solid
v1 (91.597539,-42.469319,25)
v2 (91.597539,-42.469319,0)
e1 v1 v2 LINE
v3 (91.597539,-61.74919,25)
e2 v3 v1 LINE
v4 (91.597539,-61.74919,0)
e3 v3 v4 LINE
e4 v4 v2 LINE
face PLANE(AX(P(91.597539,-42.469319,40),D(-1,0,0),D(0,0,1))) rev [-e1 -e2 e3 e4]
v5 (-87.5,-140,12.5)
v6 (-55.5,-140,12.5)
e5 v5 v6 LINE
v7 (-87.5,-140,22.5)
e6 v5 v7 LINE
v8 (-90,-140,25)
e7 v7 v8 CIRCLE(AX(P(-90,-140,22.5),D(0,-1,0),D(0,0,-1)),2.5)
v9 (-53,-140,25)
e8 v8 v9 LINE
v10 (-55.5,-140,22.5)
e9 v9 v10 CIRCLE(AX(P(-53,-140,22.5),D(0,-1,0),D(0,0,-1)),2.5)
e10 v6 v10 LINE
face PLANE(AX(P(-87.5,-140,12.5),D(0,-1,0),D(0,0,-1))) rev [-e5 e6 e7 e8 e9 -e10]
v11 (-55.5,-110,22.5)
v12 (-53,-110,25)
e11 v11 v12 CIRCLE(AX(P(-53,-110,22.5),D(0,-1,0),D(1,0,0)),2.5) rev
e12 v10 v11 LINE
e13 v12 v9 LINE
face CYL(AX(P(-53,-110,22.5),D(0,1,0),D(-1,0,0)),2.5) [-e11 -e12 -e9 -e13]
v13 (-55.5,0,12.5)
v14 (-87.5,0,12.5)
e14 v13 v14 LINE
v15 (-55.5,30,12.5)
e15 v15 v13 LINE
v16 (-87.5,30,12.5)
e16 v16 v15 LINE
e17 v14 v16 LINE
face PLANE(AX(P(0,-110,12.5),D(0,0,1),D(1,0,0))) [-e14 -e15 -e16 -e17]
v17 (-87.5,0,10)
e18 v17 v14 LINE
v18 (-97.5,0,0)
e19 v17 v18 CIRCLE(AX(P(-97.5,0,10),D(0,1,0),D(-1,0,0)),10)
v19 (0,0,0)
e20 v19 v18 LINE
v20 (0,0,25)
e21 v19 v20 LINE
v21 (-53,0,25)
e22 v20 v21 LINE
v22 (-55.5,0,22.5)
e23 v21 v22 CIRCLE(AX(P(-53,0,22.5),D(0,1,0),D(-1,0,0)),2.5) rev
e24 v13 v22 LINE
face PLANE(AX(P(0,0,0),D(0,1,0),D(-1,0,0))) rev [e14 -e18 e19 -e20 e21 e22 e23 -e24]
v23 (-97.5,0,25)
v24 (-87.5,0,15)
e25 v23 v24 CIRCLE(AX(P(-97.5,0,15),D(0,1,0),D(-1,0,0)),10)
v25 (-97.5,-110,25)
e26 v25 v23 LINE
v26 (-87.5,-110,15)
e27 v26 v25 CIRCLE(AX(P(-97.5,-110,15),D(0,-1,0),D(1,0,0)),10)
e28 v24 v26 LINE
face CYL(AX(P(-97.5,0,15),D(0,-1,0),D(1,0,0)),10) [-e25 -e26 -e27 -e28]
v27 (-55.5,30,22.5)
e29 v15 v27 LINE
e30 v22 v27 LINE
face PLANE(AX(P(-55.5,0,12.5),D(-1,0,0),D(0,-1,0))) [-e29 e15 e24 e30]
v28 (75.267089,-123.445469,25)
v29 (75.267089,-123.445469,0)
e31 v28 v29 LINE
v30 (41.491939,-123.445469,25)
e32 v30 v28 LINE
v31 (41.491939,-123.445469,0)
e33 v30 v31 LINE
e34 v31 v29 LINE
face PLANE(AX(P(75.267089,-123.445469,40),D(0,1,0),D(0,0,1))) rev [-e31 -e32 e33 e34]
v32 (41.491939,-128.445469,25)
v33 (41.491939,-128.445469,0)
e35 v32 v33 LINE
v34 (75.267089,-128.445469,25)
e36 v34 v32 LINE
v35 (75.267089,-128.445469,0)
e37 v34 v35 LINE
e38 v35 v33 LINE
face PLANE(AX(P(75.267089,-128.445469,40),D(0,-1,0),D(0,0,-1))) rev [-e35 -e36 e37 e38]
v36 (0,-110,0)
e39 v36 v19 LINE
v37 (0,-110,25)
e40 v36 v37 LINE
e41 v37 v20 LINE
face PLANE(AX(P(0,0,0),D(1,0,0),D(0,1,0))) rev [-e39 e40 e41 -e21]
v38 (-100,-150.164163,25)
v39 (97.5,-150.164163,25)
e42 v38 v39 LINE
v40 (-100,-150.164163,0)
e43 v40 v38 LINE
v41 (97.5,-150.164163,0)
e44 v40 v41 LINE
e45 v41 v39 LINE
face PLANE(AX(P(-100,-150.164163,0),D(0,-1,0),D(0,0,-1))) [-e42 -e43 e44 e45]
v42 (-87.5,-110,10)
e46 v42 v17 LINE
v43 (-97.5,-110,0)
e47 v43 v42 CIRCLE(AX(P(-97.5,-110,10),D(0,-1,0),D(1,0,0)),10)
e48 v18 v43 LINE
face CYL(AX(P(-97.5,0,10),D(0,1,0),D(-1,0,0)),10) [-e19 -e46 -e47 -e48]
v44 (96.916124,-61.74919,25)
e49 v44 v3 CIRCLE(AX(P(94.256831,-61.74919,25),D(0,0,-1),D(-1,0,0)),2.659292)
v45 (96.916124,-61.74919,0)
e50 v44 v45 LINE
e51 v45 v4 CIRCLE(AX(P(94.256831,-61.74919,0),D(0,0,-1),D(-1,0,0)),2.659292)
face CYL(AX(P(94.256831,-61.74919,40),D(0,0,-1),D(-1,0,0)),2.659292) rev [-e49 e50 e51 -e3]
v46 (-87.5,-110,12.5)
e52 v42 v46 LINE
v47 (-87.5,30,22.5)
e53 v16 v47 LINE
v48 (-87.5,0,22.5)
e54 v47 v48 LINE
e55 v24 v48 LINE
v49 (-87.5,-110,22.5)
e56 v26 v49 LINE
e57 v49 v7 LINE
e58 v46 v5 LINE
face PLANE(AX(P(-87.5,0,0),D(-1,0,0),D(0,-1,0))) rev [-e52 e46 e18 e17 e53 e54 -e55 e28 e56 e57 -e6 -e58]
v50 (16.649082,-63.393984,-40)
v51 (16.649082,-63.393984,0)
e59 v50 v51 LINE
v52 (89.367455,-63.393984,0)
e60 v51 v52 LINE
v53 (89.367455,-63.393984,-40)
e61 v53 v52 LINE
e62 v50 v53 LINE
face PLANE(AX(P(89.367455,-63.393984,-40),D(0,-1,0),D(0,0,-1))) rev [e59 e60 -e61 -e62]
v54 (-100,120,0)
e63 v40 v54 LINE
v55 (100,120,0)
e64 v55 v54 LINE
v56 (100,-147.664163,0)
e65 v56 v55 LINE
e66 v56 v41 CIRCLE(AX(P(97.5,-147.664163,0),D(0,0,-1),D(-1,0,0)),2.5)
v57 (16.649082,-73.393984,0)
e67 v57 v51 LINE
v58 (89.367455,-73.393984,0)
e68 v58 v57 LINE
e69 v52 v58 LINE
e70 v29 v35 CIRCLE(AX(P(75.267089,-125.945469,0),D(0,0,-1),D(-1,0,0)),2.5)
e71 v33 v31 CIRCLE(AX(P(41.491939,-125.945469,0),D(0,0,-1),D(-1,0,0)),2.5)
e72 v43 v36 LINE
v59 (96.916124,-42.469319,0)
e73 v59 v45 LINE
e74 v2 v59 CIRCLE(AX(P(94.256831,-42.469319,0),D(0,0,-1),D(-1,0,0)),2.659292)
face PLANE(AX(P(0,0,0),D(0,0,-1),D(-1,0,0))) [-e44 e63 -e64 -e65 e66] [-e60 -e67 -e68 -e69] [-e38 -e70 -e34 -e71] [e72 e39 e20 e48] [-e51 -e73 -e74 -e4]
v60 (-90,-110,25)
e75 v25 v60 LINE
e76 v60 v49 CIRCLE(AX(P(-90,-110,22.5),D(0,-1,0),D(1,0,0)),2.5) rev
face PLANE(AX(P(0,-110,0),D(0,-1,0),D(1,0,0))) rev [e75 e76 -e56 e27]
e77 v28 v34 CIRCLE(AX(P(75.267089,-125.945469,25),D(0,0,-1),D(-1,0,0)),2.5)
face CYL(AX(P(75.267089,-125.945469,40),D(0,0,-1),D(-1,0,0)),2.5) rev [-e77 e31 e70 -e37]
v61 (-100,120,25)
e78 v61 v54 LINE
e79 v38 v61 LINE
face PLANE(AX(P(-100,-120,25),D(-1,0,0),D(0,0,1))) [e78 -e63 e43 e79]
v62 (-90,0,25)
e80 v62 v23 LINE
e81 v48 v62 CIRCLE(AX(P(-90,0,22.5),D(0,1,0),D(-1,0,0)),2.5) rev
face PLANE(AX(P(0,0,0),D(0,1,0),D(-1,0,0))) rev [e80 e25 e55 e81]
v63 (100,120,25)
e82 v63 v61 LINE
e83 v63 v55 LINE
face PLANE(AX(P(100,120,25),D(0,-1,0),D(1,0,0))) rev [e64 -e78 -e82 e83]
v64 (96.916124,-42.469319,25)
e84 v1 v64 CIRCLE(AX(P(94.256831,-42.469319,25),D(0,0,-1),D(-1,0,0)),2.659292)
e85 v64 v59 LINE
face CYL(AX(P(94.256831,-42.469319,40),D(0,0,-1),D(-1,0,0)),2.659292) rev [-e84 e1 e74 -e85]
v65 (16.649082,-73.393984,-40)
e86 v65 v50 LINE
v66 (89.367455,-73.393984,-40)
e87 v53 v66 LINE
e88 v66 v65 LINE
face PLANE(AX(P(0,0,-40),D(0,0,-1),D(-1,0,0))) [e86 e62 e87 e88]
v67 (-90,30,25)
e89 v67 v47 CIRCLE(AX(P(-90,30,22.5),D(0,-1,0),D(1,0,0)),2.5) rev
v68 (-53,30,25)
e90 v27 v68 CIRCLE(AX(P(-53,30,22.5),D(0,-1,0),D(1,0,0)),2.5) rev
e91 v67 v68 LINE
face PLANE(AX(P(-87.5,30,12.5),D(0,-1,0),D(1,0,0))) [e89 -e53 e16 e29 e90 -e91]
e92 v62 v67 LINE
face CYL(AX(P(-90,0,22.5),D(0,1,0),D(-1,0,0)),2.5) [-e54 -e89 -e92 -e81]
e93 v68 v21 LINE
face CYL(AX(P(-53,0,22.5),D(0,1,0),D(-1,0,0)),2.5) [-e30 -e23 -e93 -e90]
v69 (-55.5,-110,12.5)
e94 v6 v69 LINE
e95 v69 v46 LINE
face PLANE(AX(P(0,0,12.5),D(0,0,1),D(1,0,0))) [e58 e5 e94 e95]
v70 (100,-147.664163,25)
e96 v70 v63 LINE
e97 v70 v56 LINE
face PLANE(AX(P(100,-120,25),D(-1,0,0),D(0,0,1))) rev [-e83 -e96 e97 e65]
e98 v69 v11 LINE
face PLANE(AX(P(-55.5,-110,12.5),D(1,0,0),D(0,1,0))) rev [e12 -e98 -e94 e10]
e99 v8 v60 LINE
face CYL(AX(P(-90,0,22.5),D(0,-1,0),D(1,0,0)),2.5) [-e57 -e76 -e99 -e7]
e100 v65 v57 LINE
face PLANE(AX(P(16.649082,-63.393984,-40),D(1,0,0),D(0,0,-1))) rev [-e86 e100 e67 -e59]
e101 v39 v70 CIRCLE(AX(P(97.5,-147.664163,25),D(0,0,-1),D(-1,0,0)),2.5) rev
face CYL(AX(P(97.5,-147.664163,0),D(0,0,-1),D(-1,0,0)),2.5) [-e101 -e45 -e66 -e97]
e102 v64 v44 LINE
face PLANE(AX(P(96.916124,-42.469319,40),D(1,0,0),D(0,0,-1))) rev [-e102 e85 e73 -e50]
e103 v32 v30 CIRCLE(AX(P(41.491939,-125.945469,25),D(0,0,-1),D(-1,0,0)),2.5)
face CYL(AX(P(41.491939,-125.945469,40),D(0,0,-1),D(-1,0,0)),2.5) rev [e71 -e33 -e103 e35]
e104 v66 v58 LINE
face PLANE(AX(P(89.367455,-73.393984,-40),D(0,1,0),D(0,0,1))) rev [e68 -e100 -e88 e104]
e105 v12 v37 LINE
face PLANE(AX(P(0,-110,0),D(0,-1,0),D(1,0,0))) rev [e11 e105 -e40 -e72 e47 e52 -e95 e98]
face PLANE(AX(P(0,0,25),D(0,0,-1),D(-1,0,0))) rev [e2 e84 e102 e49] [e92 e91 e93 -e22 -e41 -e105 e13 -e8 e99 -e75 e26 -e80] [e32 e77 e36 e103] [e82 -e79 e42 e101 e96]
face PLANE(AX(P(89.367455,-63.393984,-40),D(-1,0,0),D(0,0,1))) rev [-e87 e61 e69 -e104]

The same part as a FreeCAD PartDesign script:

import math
import FreeCAD as App
import Part
import Sketcher

V = App.Vector


def edges_at(feature, points):
    """Names of the edges that pass closest to the given points."""
    edges = feature.Shape.Edges
    near = lambda p: min(range(len(edges)), key=lambda i: edges[i].distToShape(Part.Vertex(*p))[0])
    return sorted({f"Edge{near(p) + 1}" for p in points})

doc = App.newDocument("Part")
body = doc.addObject("PartDesign::Body", "Body")

# Sketch on XY plane
sketch1 = body.newObject("Sketcher::SketchObject", "Sketch")
sketch1.AttachmentSupport = (doc.getObject("XY_Plane"), [""])
sketch1.MapMode = "FlatFace"
sketch1.addGeometry(Part.LineSegment(V(-100, 120, 0), V(-100, -120, 0)), False)
sketch1.addGeometry(Part.LineSegment(V(-100, -120, 0), V(100, -120, 0)), False)
sketch1.addGeometry(Part.LineSegment(V(100, -120, 0), V(100, 120, 0)), False)
sketch1.addGeometry(Part.LineSegment(V(100, 120, 0), V(-100, 120, 0)), False)
sketch1.addConstraint(Sketcher.Constraint("Coincident", 0, 2, 1, 1))
sketch1.addConstraint(Sketcher.Constraint("Coincident", 1, 2, 2, 1))
sketch1.addConstraint(Sketcher.Constraint("Coincident", 2, 2, 3, 1))
sketch1.addConstraint(Sketcher.Constraint("Coincident", 3, 2, 0, 1))
sketch1.addConstraint(Sketcher.Constraint("Vertical", 0))
sketch1.addConstraint(Sketcher.Constraint("Horizontal", 1))
sketch1.addConstraint(Sketcher.Constraint("Vertical", 2))
sketch1.addConstraint(Sketcher.Constraint("Horizontal", 3))
sketch1.addConstraint(Sketcher.Constraint("Symmetric", 0, 2, 2, 2, -1, 1))
sketch1.addConstraint(Sketcher.Constraint("DistanceX", 1, 1, 1, 2, 200.0))
sketch1.addConstraint(Sketcher.Constraint("DistanceY", 0, 2, 0, 1, 240.0))
pad1 = body.newObject("PartDesign::Pad", "Pad")
pad1.Profile = sketch1
pad1.Length = 25

# Sketch on XY plane
sketch2 = body.newObject("Sketcher::SketchObject", "Sketch001")
sketch2.AttachmentSupport = (doc.getObject("XY_Plane"), [""])
sketch2.MapMode = "FlatFace"
sketch2.AttachmentOffset = App.Placement(V(0, 0, 25), App.Rotation())
sketch2.addGeometry(Part.LineSegment(V(-88, 0, 0), V(-88, -110, 0)), False)
sketch2.addGeometry(Part.LineSegment(V(-88, -110, 0), V(0, -110, 0)), False)
sketch2.addGeometry(Part.LineSegment(V(0, -110, 0), V(0, 0, 0)), False)
sketch2.addGeometry(Part.LineSegment(V(0, 0, 0), V(-88, 0, 0)), False)
sketch2.addConstraint(Sketcher.Constraint("Coincident", 0, 2, 1, 1))
sketch2.addConstraint(Sketcher.Constraint("Coincident", 1, 2, 2, 1))
sketch2.addConstraint(Sketcher.Constraint("Coincident", 2, 2, 3, 1))
sketch2.addConstraint(Sketcher.Constraint("Coincident", 3, 2, 0, 1))
sketch2.addConstraint(Sketcher.Constraint("Vertical", 0))
sketch2.addConstraint(Sketcher.Constraint("Horizontal", 1))
sketch2.addConstraint(Sketcher.Constraint("Vertical", 2))
sketch2.addConstraint(Sketcher.Constraint("Horizontal", 3))
sketch2.addConstraint(Sketcher.Constraint("Coincident", 2, 2, -1, 1))
sketch2.addConstraint(Sketcher.Constraint("DistanceY", 0, 2, 0, 1, 110.0))
sketch2.addConstraint(Sketcher.Constraint("DistanceX", 1, 1, 1, 2, 87.5))
pocket1 = body.newObject("PartDesign::Pocket", "Pocket")
pocket1.Profile = sketch2
pocket1.Length = 25

# Sketch on XY plane
sketch3 = body.newObject("Sketcher::SketchObject", "Sketch002")
sketch3.AttachmentSupport = (doc.getObject("XY_Plane"), [""])
sketch3.MapMode = "FlatFace"
sketch3.AttachmentOffset = App.Placement(V(0, 0, 25), App.Rotation())
sketch3.addGeometry(Part.LineSegment(V(-100, -120, 0), V(-100, -150, 0)), False)
sketch3.addGeometry(Part.LineSegment(V(-100, -150, 0), V(100, -150, 0)), False)
sketch3.addGeometry(Part.LineSegment(V(100, -150, 0), V(100, -120, 0)), False)
sketch3.addGeometry(Part.LineSegment(V(100, -120, 0), V(-100, -120, 0)), False)
sketch3.addConstraint(Sketcher.Constraint("Coincident", 0, 2, 1, 1))
sketch3.addConstraint(Sketcher.Constraint("Coincident", 1, 2, 2, 1))
sketch3.addConstraint(Sketcher.Constraint("Coincident", 2, 2, 3, 1))
sketch3.addConstraint(Sketcher.Constraint("Coincident", 3, 2, 0, 1))
sketch3.addConstraint(Sketcher.Constraint("Vertical", 0))
sketch3.addConstraint(Sketcher.Constraint("Horizontal", 1))
sketch3.addConstraint(Sketcher.Constraint("Vertical", 2))
sketch3.addConstraint(Sketcher.Constraint("Horizontal", 3))
sketch3.addConstraint(Sketcher.Constraint("DistanceX", 1, 1, 1, 2, 200.0))
sketch3.addConstraint(Sketcher.Constraint("DistanceX", 0, 2, -1, 1, 100.0))
sketch3.addConstraint(Sketcher.Constraint("DistanceY", 2, 2, -1, 1, 120.0))
sketch3.addConstraint(Sketcher.Constraint("DistanceY", 0, 2, 0, 1, 30.164163))
pad2 = body.newObject("PartDesign::Pad", "Pad001")
pad2.Profile = sketch3
pad2.Length = 25
pad2.Reversed = True
doc.recompute()

fillet = body.newObject("PartDesign::Fillet", "Fillet")
fillet.Base = (pad2, edges_at(pad2, [(-87.5, -55, 25)]))
fillet.Radius = 10
doc.recompute()

fillet2 = body.newObject("PartDesign::Fillet", "Fillet001")
fillet2.Base = (fillet, edges_at(fillet, [(-87.5, -55, 0)]))
fillet2.Radius = 10

# Sketch on XY plane
sketch4 = body.newObject("Sketcher::SketchObject", "Sketch003")
sketch4.AttachmentSupport = (doc.getObject("XY_Plane"), [""])
sketch4.MapMode = "FlatFace"
sketch4.AttachmentOffset = App.Placement(V(0, 0, 25), App.Rotation())
sketch4.addGeometry(Part.LineSegment(V(-88, -110, 0), V(-88, -140, 0)), False)
sketch4.addGeometry(Part.LineSegment(V(-88, -140, 0), V(-56, -140, 0)), False)
sketch4.addGeometry(Part.LineSegment(V(-56, -140, 0), V(-56, -110, 0)), False)
sketch4.addGeometry(Part.LineSegment(V(-56, -110, 0), V(-88, -110, 0)), False)
sketch4.addConstraint(Sketcher.Constraint("Coincident", 0, 2, 1, 1))
sketch4.addConstraint(Sketcher.Constraint("Coincident", 1, 2, 2, 1))
sketch4.addConstraint(Sketcher.Constraint("Coincident", 2, 2, 3, 1))
sketch4.addConstraint(Sketcher.Constraint("Coincident", 3, 2, 0, 1))
sketch4.addConstraint(Sketcher.Constraint("Vertical", 0))
sketch4.addConstraint(Sketcher.Constraint("Horizontal", 1))
sketch4.addConstraint(Sketcher.Constraint("Vertical", 2))
sketch4.addConstraint(Sketcher.Constraint("Horizontal", 3))
sketch4.addConstraint(Sketcher.Constraint("DistanceX", 1, 1, 1, 2, 32.0))
sketch4.addConstraint(Sketcher.Constraint("DistanceY", 0, 2, 0, 1, 30.0))
sketch4.addConstraint(Sketcher.Constraint("DistanceY", 0, 2, -1, 1, 140.0))
sketch4.addConstraint(Sketcher.Constraint("DistanceX", 0, 2, -1, 1, 87.5))
pocket2 = body.newObject("PartDesign::Pocket", "Pocket001")
pocket2.Profile = sketch4
pocket2.Length = 12.5
doc.recompute()

fillet3 = body.newObject("PartDesign::Fillet", "Fillet002")
fillet3.Base = (pocket2, edges_at(pocket2, [(-87.5, -125, 25)]))
fillet3.Radius = 2.5
doc.recompute()

fillet4 = body.newObject("PartDesign::Fillet", "Fillet003")
fillet4.Base = (fillet3, edges_at(fillet3, [(-55.5, -125, 25)]))
fillet4.Radius = 2.5
doc.recompute()

fillet5 = body.newObject("PartDesign::Fillet", "Fillet004")
fillet5.Base = (fillet4, edges_at(fillet4, [(100, -150.164, 12.5)]))
fillet5.Radius = 2.5
doc.recompute()

datumplane = body.newObject("PartDesign::Plane", "DatumPlane")
datumplane.AttachmentSupport = (doc.getObject("XZ_Plane"), [""])
datumplane.MapMode = "FlatFace"
datumplane.AttachmentOffset = App.Placement(V(0, 0, 55), App.Rotation())
mirrored = body.newObject("PartDesign::Mirrored", "Mirrored")
mirrored.Originals = [pocket2]
mirrored.MirrorPlane = (datumplane, [""])
body.Tip = mirrored

# Sketch on XY plane
sketch5 = body.newObject("Sketcher::SketchObject", "Sketch004")
sketch5.AttachmentSupport = (doc.getObject("XY_Plane"), [""])
sketch5.MapMode = "FlatFace"
sketch5.addGeometry(Part.LineSegment(V(89, -63, 0), V(89, -73, 0)), False)
sketch5.addGeometry(Part.LineSegment(V(89, -73, 0), V(17, -73, 0)), False)
sketch5.addGeometry(Part.LineSegment(V(17, -73, 0), V(17, -63, 0)), False)
sketch5.addGeometry(Part.LineSegment(V(17, -63, 0), V(89, -63, 0)), False)
sketch5.addConstraint(Sketcher.Constraint("Coincident", 0, 2, 1, 1))
sketch5.addConstraint(Sketcher.Constraint("Coincident", 1, 2, 2, 1))
sketch5.addConstraint(Sketcher.Constraint("Coincident", 2, 2, 3, 1))
sketch5.addConstraint(Sketcher.Constraint("Coincident", 3, 2, 0, 1))
sketch5.addConstraint(Sketcher.Constraint("Vertical", 0))
sketch5.addConstraint(Sketcher.Constraint("Horizontal", 1))
sketch5.addConstraint(Sketcher.Constraint("Vertical", 2))
sketch5.addConstraint(Sketcher.Constraint("Horizontal", 3))
sketch5.addConstraint(Sketcher.Constraint("DistanceY", 0, 2, 0, 1, 10.0))
sketch5.addConstraint(Sketcher.Constraint("DistanceX", 1, 2, 1, 1, 72.718373))
sketch5.addConstraint(Sketcher.Constraint("DistanceX", -1, 1, 1, 2, 16.649082))
sketch5.addConstraint(Sketcher.Constraint("DistanceY", 0, 2, -1, 1, 73.393984))
pad3 = body.newObject("PartDesign::Pad", "Pad002")
pad3.Profile = sketch5
pad3.Length = 40
pad3.Reversed = True
doc.recompute()

fillet6 = body.newObject("PartDesign::Fillet", "Fillet005")
fillet6.Base = (pad3, edges_at(pad3, [(-87.5, 15, 25), (-55.5, 15, 25)]))
fillet6.Radius = 2.5

# Sketch on XY plane
sketch6 = body.newObject("Sketcher::SketchObject", "Sketch005")
sketch6.AttachmentSupport = (doc.getObject("XY_Plane"), [""])
sketch6.MapMode = "FlatFace"
sketch6.addGeometry(Part.LineSegment(V(91.6, -61.7, 0), V(91.6, -42.5, 0)), False)
sketch6.addGeometry(Part.ArcOfCircle(Part.Circle(V(94.3, -42.5, 0), V(0, 0, 1), 2.7), math.radians(0), math.radians(180)), False)
sketch6.addGeometry(Part.LineSegment(V(96.9, -42.5, 0), V(96.9, -61.7, 0)), False)
sketch6.addGeometry(Part.ArcOfCircle(Part.Circle(V(94.3, -61.7, 0), V(0, 0, 1), 2.7), math.radians(-180), math.radians(0)), False)
sketch6.addConstraint(Sketcher.Constraint("Tangent", 0, 2, 1, 2))
sketch6.addConstraint(Sketcher.Constraint("Tangent", 1, 1, 2, 1))
sketch6.addConstraint(Sketcher.Constraint("Tangent", 2, 2, 3, 2))
sketch6.addConstraint(Sketcher.Constraint("Tangent", 3, 1, 0, 1))
sketch6.addConstraint(Sketcher.Constraint("Vertical", 0))
sketch6.addConstraint(Sketcher.Constraint("Vertical", 2))
sketch6.addConstraint(Sketcher.Constraint("Radius", 1, 2.659292))
sketch6.addConstraint(Sketcher.Constraint("DistanceY", 0, 1, 0, 2, 19.27987))
sketch6.addConstraint(Sketcher.Constraint("DistanceX", -1, 1, 1, 3, 94.256831))
sketch6.addConstraint(Sketcher.Constraint("DistanceY", 1, 3, -1, 1, 42.469319))
pocket3 = body.newObject("PartDesign::Pocket", "Pocket002")
pocket3.Profile = sketch6
pocket3.Length = 40
pocket3.Reversed = True

# Sketch on XY plane
sketch7 = body.newObject("Sketcher::SketchObject", "Sketch006")
sketch7.AttachmentSupport = (doc.getObject("XY_Plane"), [""])
sketch7.MapMode = "FlatFace"
sketch7.addGeometry(Part.LineSegment(V(41.5, -123.4, 0), V(75.3, -123.4, 0)), False)
sketch7.addGeometry(Part.ArcOfCircle(Part.Circle(V(75.3, -125.9, 0), V(0, 0, 1), 2.5), math.radians(-90), math.radians(90)), False)
sketch7.addGeometry(Part.LineSegment(V(75.3, -128.4, 0), V(41.5, -128.4, 0)), False)
sketch7.addGeometry(Part.ArcOfCircle(Part.Circle(V(41.5, -125.9, 0), V(0, 0, 1), 2.5), math.radians(90), math.radians(270)), False)
sketch7.addConstraint(Sketcher.Constraint("Tangent", 0, 2, 1, 2))
sketch7.addConstraint(Sketcher.Constraint("Tangent", 1, 1, 2, 1))
sketch7.addConstraint(Sketcher.Constraint("Tangent", 2, 2, 3, 2))
sketch7.addConstraint(Sketcher.Constraint("Tangent", 3, 1, 0, 1))
sketch7.addConstraint(Sketcher.Constraint("Horizontal", 0))
sketch7.addConstraint(Sketcher.Constraint("Horizontal", 2))
sketch7.addConstraint(Sketcher.Constraint("Radius", 1, 2.5))
sketch7.addConstraint(Sketcher.Constraint("DistanceX", 0, 1, 0, 2, 33.77515))
sketch7.addConstraint(Sketcher.Constraint("DistanceX", -1, 1, 1, 3, 75.267089))
sketch7.addConstraint(Sketcher.Constraint("DistanceY", 1, 3, -1, 1, 125.945469))
pocket4 = body.newObject("PartDesign::Pocket", "Pocket003")
pocket4.Profile = sketch7
pocket4.Length = 40
pocket4.Reversed = True

doc.recompute()
